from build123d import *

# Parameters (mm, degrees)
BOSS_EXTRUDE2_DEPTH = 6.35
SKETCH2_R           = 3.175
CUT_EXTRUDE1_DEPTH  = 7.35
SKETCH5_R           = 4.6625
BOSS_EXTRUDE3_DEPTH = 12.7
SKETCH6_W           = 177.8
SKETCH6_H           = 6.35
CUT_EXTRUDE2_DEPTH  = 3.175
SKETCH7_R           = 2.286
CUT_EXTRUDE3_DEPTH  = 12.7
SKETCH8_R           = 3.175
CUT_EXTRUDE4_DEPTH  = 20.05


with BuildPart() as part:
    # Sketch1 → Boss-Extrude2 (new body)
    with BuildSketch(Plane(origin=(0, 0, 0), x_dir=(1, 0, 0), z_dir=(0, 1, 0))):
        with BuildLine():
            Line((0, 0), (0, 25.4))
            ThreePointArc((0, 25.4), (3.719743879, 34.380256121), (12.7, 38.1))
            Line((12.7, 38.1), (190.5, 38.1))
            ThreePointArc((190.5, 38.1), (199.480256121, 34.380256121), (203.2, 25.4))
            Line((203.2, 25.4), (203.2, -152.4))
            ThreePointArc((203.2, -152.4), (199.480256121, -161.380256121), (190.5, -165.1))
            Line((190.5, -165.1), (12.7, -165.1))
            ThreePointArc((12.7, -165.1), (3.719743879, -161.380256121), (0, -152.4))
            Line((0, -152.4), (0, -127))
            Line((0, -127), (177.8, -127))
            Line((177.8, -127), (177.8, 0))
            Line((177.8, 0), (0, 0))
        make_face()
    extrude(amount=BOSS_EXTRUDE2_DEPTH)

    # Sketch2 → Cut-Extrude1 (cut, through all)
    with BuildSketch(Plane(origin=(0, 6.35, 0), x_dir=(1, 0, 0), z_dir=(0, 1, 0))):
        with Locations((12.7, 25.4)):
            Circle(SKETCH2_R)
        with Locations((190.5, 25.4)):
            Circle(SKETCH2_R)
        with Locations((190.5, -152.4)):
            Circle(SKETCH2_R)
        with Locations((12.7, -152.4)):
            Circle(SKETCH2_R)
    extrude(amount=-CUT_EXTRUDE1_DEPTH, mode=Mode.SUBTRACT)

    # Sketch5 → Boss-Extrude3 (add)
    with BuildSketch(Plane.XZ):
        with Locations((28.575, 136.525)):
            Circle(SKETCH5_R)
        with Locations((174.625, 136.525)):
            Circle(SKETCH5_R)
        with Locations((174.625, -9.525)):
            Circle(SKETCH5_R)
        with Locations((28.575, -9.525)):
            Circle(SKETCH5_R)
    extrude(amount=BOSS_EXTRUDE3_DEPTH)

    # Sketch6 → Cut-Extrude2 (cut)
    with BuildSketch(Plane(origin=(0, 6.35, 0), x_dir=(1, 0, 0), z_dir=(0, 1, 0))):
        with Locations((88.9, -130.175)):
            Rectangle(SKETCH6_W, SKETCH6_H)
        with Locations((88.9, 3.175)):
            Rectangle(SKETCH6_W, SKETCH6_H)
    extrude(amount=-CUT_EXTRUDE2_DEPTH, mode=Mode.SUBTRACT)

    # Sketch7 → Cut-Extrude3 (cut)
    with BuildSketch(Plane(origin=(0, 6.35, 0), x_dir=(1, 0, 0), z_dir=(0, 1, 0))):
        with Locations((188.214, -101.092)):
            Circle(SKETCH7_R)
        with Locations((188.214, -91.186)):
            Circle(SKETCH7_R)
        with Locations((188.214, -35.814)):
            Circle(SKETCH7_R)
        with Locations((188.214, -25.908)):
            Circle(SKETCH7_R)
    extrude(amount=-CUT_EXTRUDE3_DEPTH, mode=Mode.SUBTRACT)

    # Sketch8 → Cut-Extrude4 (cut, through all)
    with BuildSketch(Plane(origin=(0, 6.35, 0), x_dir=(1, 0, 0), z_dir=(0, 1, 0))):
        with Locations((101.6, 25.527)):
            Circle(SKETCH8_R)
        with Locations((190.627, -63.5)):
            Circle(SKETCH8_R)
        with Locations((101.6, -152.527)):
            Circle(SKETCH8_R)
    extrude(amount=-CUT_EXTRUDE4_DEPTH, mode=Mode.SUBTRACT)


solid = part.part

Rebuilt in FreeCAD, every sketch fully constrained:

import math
import FreeCAD as App
import Part
import Sketcher
Q = App.Units.Quantity


def add_polygon(sketch, points):
    """Adds a closed chain of lines whose ends are joined by coincident constraints."""
    first, n = sketch.GeometryCount, len(points)
    for a, b in zip(points, points[1:] + points[:1]):
        sketch.addGeometry(Part.LineSegment(App.Vector(*a, 0), App.Vector(*b, 0)), False)
    for i in range(n):
        sketch.addConstraint(Sketcher.Constraint("Coincident", first + i, 2, first + (i + 1) % n, 1))

doc = App.newDocument("Part")
body = doc.addObject("PartDesign::Body", "Body")

# Sketch on XZ plane
sketch1 = body.newObject("Sketcher::SketchObject", "Sketch")
sketch1.AttachmentSupport = (doc.getObject("XZ_Plane"), [""])
sketch1.MapMode = "FlatFace"
sketch1.addGeometry(Part.LineSegment(App.Vector(0, -25, 0), App.Vector(0, 0, 0)), False)
sketch1.addGeometry(Part.LineSegment(App.Vector(0, 0, 0), App.Vector(178, 0, 0)), False)
sketch1.addGeometry(Part.LineSegment(App.Vector(178, 0, 0), App.Vector(178, 127, 0)), False)
sketch1.addGeometry(Part.LineSegment(App.Vector(178, 127, 0), App.Vector(0, 127, 0)), False)
sketch1.addGeometry(Part.LineSegment(App.Vector(0, 127, 0), App.Vector(0, 152, 0)), False)
sketch1.addGeometry(Part.ArcOfCircle(Part.Circle(App.Vector(13, 152, 0), App.Vector(0, 0, 1), 13), math.radians(90), math.radians(180)), False)
sketch1.addGeometry(Part.LineSegment(App.Vector(13, 165, 0), App.Vector(190, 165, 0)), False)
sketch1.addGeometry(Part.ArcOfCircle(Part.Circle(App.Vector(190, 152, 0), App.Vector(0, 0, 1), 13), math.radians(0), math.radians(90)), False)
sketch1.addGeometry(Part.LineSegment(App.Vector(203, 152, 0), App.Vector(203, -25, 0)), False)
sketch1.addGeometry(Part.ArcOfCircle(Part.Circle(App.Vector(190, -25, 0), App.Vector(0, 0, 1), 13), math.radians(-90), math.radians(0)), False)
sketch1.addGeometry(Part.LineSegment(App.Vector(190, -38, 0), App.Vector(13, -38, 0)), False)
sketch1.addGeometry(Part.ArcOfCircle(Part.Circle(App.Vector(13, -25, 0), App.Vector(0, 0, 1), 13), math.radians(180), math.radians(270)), False)
sketch1.addConstraint(Sketcher.Constraint("Coincident", 0, 2, 1, 1))
sketch1.addConstraint(Sketcher.Constraint("Coincident", 1, 2, 2, 1))
sketch1.addConstraint(Sketcher.Constraint("Coincident", 2, 2, 3, 1))
sketch1.addConstraint(Sketcher.Constraint("Coincident", 3, 2, 4, 1))
sketch1.addConstraint(Sketcher.Constraint("Tangent", 4, 2, 5, 2))
sketch1.addConstraint(Sketcher.Constraint("Tangent", 5, 1, 6, 1))
sketch1.addConstraint(Sketcher.Constraint("Tangent", 6, 2, 7, 2))
sketch1.addConstraint(Sketcher.Constraint("Tangent", 7, 1, 8, 1))
sketch1.addConstraint(Sketcher.Constraint("Tangent", 8, 2, 9, 2))
sketch1.addConstraint(Sketcher.Constraint("Tangent", 9, 1, 10, 1))
sketch1.addConstraint(Sketcher.Constraint("Tangent", 10, 2, 11, 2))
sketch1.addConstraint(Sketcher.Constraint("Tangent", 11, 1, 0, 1))
sketch1.addConstraint(Sketcher.Constraint("Vertical", 0))
sketch1.addConstraint(Sketcher.Constraint("Horizontal", 1))
sketch1.addConstraint(Sketcher.Constraint("Vertical", 2))
sketch1.addConstraint(Sketcher.Constraint("Horizontal", 3))
sketch1.addConstraint(Sketcher.Constraint("Vertical", 4))
sketch1.addConstraint(Sketcher.Constraint("Horizontal", 6))
sketch1.addConstraint(Sketcher.Constraint("Vertical", 8))
sketch1.addConstraint(Sketcher.Constraint("Horizontal", 10))
sketch1.addConstraint(Sketcher.Constraint("Coincident", 0, 2, -1, 1))
sketch1.addConstraint(Sketcher.Constraint("Equal", 5, 7))
sketch1.addConstraint(Sketcher.Constraint("Equal", 7, 9))
sketch1.addConstraint(Sketcher.Constraint("Equal", 9, 11))
sketch1.addConstraint(Sketcher.Constraint("PointOnObject", 3, 2, -2))
sketch1.addConstraint(Sketcher.Constraint("Equal", 3, 6))
sketch1.addConstraint(Sketcher.Constraint("Equal", 0, 4))
sketch1.addConstraint(Sketcher.Constraint("Equal", 10, 8))
sketch1.addConstraint(Sketcher.Constraint("Radius", 5, Q("0.5 in")))
sketch1.addConstraint(Sketcher.Constraint("DistanceX", 1, 1, 1, 2, Q("7 in")))
sketch1.addConstraint(Sketcher.Constraint("DistanceY", 0, 1, 0, 2, Q("1 in")))
pad1 = body.newObject("PartDesign::Pad", "Pad")
pad1.Profile = sketch1
pad1.Length = Q("0.25 in")
pad1.Reversed = True

# Sketch on XZ plane
sketch2 = body.newObject("Sketcher::SketchObject", "Sketch001")
sketch2.AttachmentSupport = (doc.getObject("XZ_Plane"), [""])
sketch2.MapMode = "FlatFace"
sketch2.AttachmentOffset = App.Placement(App.Vector(0, 0, -0.25 * 25.4), App.Rotation())
sketch2.addGeometry(Part.Circle(App.Vector(12.7, -25.4, 0), App.Vector(0, 0, 1), 3.2), False)
sketch2.addGeometry(Part.Circle(App.Vector(190.5, -25.4, 0), App.Vector(0, 0, 1), 3.2), False)
sketch2.addGeometry(Part.Circle(App.Vector(190.5, 152.4, 0), App.Vector(0, 0, 1), 3.2), False)
sketch2.addGeometry(Part.Circle(App.Vector(12.7, 152.4, 0), App.Vector(0, 0, 1), 3.2), False)
sketch2.addConstraint(Sketcher.Constraint("Equal", 0, 1))
sketch2.addConstraint(Sketcher.Constraint("Equal", 1, 2))
sketch2.addConstraint(Sketcher.Constraint("Equal", 2, 3))
sketch2.addConstraint(Sketcher.Constraint("Horizontal", 0, 3, 1, 3))
sketch2.addConstraint(Sketcher.Constraint("Horizontal", 2, 3, 3, 3))
sketch2.addConstraint(Sketcher.Constraint("Vertical", 1, 3, 2, 3))
sketch2.addConstraint(Sketcher.Constraint("Vertical", 0, 3, 3, 3))
sketch2.addConstraint(Sketcher.Constraint("Diameter", 0, Q("0.25 in")))
sketch2.addConstraint(Sketcher.Constraint("DistanceY", 0, 3, -1, 1, Q("1 in")))
sketch2.addConstraint(Sketcher.Constraint("DistanceY", -1, 1, 2, 3, Q("6 in")))
sketch2.addConstraint(Sketcher.Constraint("DistanceX", 0, 3, 1, 3, Q("7 in")))
sketch2.addConstraint(Sketcher.Constraint("DistanceX", -1, 1, 0, 3, Q("0.5 in")))
pocket1 = body.newObject("PartDesign::Pocket", "Pocket")
pocket1.Profile = sketch2
pocket1.Type = "ThroughAll"
pocket1.Reversed = True

# Sketch on XZ plane
sketch3 = body.newObject("Sketcher::SketchObject", "Sketch002")
sketch3.AttachmentSupport = (doc.getObject("XZ_Plane"), [""])
sketch3.MapMode = "FlatFace"
sketch3.addGeometry(Part.Circle(App.Vector(28.6, 136.5, 0), App.Vector(0, 0, 1), 4.7), False)
sketch3.addGeometry(Part.Circle(App.Vector(174.6, 136.5, 0), App.Vector(0, 0, 1), 4.7), False)
sketch3.addGeometry(Part.Circle(App.Vector(174.6, -9.5, 0), App.Vector(0, 0, 1), 4.7), False)
sketch3.addGeometry(Part.Circle(App.Vector(28.6, -9.5, 0), App.Vector(0, 0, 1), 4.7), False)
sketch3.addConstraint(Sketcher.Constraint("Equal", 0, 1))
sketch3.addConstraint(Sketcher.Constraint("Equal", 1, 2))
sketch3.addConstraint(Sketcher.Constraint("Equal", 2, 3))
sketch3.addConstraint(Sketcher.Constraint("Horizontal", 0, 3, 1, 3))
sketch3.addConstraint(Sketcher.Constraint("Horizontal", 2, 3, 3, 3))
sketch3.addConstraint(Sketcher.Constraint("Vertical", 1, 3, 2, 3))
sketch3.addConstraint(Sketcher.Constraint("Vertical", 0, 3, 3, 3))
sketch3.addConstraint(Sketcher.Constraint("Diameter", 0, Q("9.325 mm")))
sketch3.addConstraint(Sketcher.Constraint("DistanceX", 0, 3, 1, 3, Q("5.75 in")))
sketch3.addConstraint(Sketcher.Constraint("DistanceY", 2, 3, 1, 3, Q("5.75 in")))
sketch3.addConstraint(Sketcher.Constraint("DistanceX", -1, 1, 0, 3, Q("1.125 in")))
sketch3.addConstraint(Sketcher.Constraint("DistanceY", -1, 1, 0, 3, Q("5.375 in")))
pad2 = body.newObject("PartDesign::Pad", "Pad001")
pad2.Profile = sketch3
pad2.Length = Q("0.5 in")

# Sketch on XZ plane
sketch4 = body.newObject("Sketcher::SketchObject", "Sketch003")
sketch4.AttachmentSupport = (doc.getObject("XZ_Plane"), [""])
sketch4.MapMode = "FlatFace"
sketch4.AttachmentOffset = App.Placement(App.Vector(0, 0, -0.25 * 25.4), App.Rotation())
add_polygon(sketch4, [(0, 127), (0, 133), (178, 133), (178, 127)])  # lines 0-3
add_polygon(sketch4, [(0, -6), (0, 0), (178, 0), (178, -6)])  # lines 4-7
sketch4.addConstraint(Sketcher.Constraint("Vertical", 0))
sketch4.addConstraint(Sketcher.Constraint("Horizontal", 1))
sketch4.addConstraint(Sketcher.Constraint("Vertical", 2))
sketch4.addConstraint(Sketcher.Constraint("Horizontal", 3))
sketch4.addConstraint(Sketcher.Constraint("Vertical", 4))
sketch4.addConstraint(Sketcher.Constraint("Horizontal", 5))
sketch4.addConstraint(Sketcher.Constraint("Vertical", 6))
sketch4.addConstraint(Sketcher.Constraint("Horizontal", 7))
sketch4.addConstraint(Sketcher.Constraint("Coincident", 4, 2, -1, 1))
sketch4.addConstraint(Sketcher.Constraint("PointOnObject", 0, 2, -2))
sketch4.addConstraint(Sketcher.Constraint("Vertical", 2, 2, 5, 2))
sketch4.addConstraint(Sketcher.Constraint("Equal", 2, 4))
sketch4.addConstraint(Sketcher.Constraint("DistanceX", 1, 1, 1, 2, Q("7 in")))
sketch4.addConstraint(Sketcher.Constraint("DistanceY", -1, 1, 2, 2, Q("5 in")))
sketch4.addConstraint(Sketcher.Constraint("DistanceY", 0, 1, 0, 2, Q("0.25 in")))
pocket2 = body.newObject("PartDesign::Pocket", "Pocket001")
pocket2.Profile = sketch4
pocket2.Length = Q("0.125 in")
pocket2.Reversed = True

# Sketch on XZ plane
sketch5 = body.newObject("Sketcher::SketchObject", "Sketch004")
sketch5.AttachmentSupport = (doc.getObject("XZ_Plane"), [""])
sketch5.MapMode = "FlatFace"
sketch5.AttachmentOffset = App.Placement(App.Vector(0, 0, -0.25 * 25.4), App.Rotation())
sketch5.addGeometry(Part.Circle(App.Vector(188.2, 101.1, 0), App.Vector(0, 0, 1), 2.3), False)
sketch5.addGeometry(Part.Circle(App.Vector(188.2, 91.2, 0), App.Vector(0, 0, 1), 2.3), False)
sketch5.addGeometry(Part.Circle(App.Vector(188.2, 35.8, 0), App.Vector(0, 0, 1), 2.3), False)
sketch5.addGeometry(Part.Circle(App.Vector(188.2, 25.9, 0), App.Vector(0, 0, 1), 2.3), False)
sketch5.addConstraint(Sketcher.Constraint("Equal", 0, 1))
sketch5.addConstraint(Sketcher.Constraint("Equal", 1, 2))
sketch5.addConstraint(Sketcher.Constraint("Equal", 2, 3))
sketch5.addConstraint(Sketcher.Constraint("Vertical", 0, 3, 1, 3))
sketch5.addConstraint(Sketcher.Constraint("Vertical", 1, 3, 2, 3))
sketch5.addConstraint(Sketcher.Constraint("Vertical", 2, 3, 3, 3))
sketch5.addConstraint(Sketcher.Constraint("Diameter", 0, Q("0.18 in")))
sketch5.addConstraint(Sketcher.Constraint("DistanceX", -1, 1, 0, 3, Q("7.41 in")))
sketch5.addConstraint(Sketcher.Constraint("DistanceY", -1, 1, 0, 3, Q("3.98 in")))
sketch5.addConstraint(Sketcher.Constraint("DistanceY", -1, 1, 1, 3, Q("3.59 in")))
sketch5.addConstraint(Sketcher.Constraint("DistanceY", -1, 1, 2, 3, Q("1.41 in")))
sketch5.addConstraint(Sketcher.Constraint("DistanceY", -1, 1, 3, 3, Q("1.02 in")))
pocket3 = body.newObject("PartDesign::Pocket", "Pocket002")
pocket3.Profile = sketch5
pocket3.Length = Q("0.5 in")
pocket3.Reversed = True

# Sketch on XZ plane
sketch6 = body.newObject("Sketcher::SketchObject", "Sketch005")
sketch6.AttachmentSupport = (doc.getObject("XZ_Plane"), [""])
sketch6.MapMode = "FlatFace"
sketch6.AttachmentOffset = App.Placement(App.Vector(0, 0, -0.25 * 25.4), App.Rotation())
sketch6.addGeometry(Part.Circle(App.Vector(101.6, -25.5, 0), App.Vector(0, 0, 1), 3.2), False)
sketch6.addGeometry(Part.Circle(App.Vector(190.6, 63.5, 0), App.Vector(0, 0, 1), 3.2), False)
sketch6.addGeometry(Part.Circle(App.Vector(101.6, 152.5, 0), App.Vector(0, 0, 1), 3.2), False)
sketch6.addConstraint(Sketcher.Constraint("Equal", 0, 1))
sketch6.addConstraint(Sketcher.Constraint("Equal", 1, 2))
sketch6.addConstraint(Sketcher.Constraint("Vertical", 0, 3, 2, 3))
sketch6.addConstraint(Sketcher.Constraint("Diameter", 0, Q("0.25 in")))
sketch6.addConstraint(Sketcher.Constraint("DistanceX", -1, 1, 0, 3, Q("4 in")))
sketch6.addConstraint(Sketcher.Constraint("DistanceY", -1, 1, 1, 3, Q("2.5 in")))
sketch6.addConstraint(Sketcher.Constraint("DistanceY", 0, 3, 2, 3, Q("7.01 in")))
sketch6.addConstraint(Sketcher.Constraint("DistanceY", 0, 3, -1, 1, Q("1.005 in")))
sketch6.addConstraint(Sketcher.Constraint("DistanceX", -1, 1, 1, 3, Q("7.505 in")))
pocket4 = body.newObject("PartDesign::Pocket", "Pocket003")
pocket4.Profile = sketch6
pocket4.Type = "ThroughAll"
pocket4.Reversed = True

doc.recompute()
